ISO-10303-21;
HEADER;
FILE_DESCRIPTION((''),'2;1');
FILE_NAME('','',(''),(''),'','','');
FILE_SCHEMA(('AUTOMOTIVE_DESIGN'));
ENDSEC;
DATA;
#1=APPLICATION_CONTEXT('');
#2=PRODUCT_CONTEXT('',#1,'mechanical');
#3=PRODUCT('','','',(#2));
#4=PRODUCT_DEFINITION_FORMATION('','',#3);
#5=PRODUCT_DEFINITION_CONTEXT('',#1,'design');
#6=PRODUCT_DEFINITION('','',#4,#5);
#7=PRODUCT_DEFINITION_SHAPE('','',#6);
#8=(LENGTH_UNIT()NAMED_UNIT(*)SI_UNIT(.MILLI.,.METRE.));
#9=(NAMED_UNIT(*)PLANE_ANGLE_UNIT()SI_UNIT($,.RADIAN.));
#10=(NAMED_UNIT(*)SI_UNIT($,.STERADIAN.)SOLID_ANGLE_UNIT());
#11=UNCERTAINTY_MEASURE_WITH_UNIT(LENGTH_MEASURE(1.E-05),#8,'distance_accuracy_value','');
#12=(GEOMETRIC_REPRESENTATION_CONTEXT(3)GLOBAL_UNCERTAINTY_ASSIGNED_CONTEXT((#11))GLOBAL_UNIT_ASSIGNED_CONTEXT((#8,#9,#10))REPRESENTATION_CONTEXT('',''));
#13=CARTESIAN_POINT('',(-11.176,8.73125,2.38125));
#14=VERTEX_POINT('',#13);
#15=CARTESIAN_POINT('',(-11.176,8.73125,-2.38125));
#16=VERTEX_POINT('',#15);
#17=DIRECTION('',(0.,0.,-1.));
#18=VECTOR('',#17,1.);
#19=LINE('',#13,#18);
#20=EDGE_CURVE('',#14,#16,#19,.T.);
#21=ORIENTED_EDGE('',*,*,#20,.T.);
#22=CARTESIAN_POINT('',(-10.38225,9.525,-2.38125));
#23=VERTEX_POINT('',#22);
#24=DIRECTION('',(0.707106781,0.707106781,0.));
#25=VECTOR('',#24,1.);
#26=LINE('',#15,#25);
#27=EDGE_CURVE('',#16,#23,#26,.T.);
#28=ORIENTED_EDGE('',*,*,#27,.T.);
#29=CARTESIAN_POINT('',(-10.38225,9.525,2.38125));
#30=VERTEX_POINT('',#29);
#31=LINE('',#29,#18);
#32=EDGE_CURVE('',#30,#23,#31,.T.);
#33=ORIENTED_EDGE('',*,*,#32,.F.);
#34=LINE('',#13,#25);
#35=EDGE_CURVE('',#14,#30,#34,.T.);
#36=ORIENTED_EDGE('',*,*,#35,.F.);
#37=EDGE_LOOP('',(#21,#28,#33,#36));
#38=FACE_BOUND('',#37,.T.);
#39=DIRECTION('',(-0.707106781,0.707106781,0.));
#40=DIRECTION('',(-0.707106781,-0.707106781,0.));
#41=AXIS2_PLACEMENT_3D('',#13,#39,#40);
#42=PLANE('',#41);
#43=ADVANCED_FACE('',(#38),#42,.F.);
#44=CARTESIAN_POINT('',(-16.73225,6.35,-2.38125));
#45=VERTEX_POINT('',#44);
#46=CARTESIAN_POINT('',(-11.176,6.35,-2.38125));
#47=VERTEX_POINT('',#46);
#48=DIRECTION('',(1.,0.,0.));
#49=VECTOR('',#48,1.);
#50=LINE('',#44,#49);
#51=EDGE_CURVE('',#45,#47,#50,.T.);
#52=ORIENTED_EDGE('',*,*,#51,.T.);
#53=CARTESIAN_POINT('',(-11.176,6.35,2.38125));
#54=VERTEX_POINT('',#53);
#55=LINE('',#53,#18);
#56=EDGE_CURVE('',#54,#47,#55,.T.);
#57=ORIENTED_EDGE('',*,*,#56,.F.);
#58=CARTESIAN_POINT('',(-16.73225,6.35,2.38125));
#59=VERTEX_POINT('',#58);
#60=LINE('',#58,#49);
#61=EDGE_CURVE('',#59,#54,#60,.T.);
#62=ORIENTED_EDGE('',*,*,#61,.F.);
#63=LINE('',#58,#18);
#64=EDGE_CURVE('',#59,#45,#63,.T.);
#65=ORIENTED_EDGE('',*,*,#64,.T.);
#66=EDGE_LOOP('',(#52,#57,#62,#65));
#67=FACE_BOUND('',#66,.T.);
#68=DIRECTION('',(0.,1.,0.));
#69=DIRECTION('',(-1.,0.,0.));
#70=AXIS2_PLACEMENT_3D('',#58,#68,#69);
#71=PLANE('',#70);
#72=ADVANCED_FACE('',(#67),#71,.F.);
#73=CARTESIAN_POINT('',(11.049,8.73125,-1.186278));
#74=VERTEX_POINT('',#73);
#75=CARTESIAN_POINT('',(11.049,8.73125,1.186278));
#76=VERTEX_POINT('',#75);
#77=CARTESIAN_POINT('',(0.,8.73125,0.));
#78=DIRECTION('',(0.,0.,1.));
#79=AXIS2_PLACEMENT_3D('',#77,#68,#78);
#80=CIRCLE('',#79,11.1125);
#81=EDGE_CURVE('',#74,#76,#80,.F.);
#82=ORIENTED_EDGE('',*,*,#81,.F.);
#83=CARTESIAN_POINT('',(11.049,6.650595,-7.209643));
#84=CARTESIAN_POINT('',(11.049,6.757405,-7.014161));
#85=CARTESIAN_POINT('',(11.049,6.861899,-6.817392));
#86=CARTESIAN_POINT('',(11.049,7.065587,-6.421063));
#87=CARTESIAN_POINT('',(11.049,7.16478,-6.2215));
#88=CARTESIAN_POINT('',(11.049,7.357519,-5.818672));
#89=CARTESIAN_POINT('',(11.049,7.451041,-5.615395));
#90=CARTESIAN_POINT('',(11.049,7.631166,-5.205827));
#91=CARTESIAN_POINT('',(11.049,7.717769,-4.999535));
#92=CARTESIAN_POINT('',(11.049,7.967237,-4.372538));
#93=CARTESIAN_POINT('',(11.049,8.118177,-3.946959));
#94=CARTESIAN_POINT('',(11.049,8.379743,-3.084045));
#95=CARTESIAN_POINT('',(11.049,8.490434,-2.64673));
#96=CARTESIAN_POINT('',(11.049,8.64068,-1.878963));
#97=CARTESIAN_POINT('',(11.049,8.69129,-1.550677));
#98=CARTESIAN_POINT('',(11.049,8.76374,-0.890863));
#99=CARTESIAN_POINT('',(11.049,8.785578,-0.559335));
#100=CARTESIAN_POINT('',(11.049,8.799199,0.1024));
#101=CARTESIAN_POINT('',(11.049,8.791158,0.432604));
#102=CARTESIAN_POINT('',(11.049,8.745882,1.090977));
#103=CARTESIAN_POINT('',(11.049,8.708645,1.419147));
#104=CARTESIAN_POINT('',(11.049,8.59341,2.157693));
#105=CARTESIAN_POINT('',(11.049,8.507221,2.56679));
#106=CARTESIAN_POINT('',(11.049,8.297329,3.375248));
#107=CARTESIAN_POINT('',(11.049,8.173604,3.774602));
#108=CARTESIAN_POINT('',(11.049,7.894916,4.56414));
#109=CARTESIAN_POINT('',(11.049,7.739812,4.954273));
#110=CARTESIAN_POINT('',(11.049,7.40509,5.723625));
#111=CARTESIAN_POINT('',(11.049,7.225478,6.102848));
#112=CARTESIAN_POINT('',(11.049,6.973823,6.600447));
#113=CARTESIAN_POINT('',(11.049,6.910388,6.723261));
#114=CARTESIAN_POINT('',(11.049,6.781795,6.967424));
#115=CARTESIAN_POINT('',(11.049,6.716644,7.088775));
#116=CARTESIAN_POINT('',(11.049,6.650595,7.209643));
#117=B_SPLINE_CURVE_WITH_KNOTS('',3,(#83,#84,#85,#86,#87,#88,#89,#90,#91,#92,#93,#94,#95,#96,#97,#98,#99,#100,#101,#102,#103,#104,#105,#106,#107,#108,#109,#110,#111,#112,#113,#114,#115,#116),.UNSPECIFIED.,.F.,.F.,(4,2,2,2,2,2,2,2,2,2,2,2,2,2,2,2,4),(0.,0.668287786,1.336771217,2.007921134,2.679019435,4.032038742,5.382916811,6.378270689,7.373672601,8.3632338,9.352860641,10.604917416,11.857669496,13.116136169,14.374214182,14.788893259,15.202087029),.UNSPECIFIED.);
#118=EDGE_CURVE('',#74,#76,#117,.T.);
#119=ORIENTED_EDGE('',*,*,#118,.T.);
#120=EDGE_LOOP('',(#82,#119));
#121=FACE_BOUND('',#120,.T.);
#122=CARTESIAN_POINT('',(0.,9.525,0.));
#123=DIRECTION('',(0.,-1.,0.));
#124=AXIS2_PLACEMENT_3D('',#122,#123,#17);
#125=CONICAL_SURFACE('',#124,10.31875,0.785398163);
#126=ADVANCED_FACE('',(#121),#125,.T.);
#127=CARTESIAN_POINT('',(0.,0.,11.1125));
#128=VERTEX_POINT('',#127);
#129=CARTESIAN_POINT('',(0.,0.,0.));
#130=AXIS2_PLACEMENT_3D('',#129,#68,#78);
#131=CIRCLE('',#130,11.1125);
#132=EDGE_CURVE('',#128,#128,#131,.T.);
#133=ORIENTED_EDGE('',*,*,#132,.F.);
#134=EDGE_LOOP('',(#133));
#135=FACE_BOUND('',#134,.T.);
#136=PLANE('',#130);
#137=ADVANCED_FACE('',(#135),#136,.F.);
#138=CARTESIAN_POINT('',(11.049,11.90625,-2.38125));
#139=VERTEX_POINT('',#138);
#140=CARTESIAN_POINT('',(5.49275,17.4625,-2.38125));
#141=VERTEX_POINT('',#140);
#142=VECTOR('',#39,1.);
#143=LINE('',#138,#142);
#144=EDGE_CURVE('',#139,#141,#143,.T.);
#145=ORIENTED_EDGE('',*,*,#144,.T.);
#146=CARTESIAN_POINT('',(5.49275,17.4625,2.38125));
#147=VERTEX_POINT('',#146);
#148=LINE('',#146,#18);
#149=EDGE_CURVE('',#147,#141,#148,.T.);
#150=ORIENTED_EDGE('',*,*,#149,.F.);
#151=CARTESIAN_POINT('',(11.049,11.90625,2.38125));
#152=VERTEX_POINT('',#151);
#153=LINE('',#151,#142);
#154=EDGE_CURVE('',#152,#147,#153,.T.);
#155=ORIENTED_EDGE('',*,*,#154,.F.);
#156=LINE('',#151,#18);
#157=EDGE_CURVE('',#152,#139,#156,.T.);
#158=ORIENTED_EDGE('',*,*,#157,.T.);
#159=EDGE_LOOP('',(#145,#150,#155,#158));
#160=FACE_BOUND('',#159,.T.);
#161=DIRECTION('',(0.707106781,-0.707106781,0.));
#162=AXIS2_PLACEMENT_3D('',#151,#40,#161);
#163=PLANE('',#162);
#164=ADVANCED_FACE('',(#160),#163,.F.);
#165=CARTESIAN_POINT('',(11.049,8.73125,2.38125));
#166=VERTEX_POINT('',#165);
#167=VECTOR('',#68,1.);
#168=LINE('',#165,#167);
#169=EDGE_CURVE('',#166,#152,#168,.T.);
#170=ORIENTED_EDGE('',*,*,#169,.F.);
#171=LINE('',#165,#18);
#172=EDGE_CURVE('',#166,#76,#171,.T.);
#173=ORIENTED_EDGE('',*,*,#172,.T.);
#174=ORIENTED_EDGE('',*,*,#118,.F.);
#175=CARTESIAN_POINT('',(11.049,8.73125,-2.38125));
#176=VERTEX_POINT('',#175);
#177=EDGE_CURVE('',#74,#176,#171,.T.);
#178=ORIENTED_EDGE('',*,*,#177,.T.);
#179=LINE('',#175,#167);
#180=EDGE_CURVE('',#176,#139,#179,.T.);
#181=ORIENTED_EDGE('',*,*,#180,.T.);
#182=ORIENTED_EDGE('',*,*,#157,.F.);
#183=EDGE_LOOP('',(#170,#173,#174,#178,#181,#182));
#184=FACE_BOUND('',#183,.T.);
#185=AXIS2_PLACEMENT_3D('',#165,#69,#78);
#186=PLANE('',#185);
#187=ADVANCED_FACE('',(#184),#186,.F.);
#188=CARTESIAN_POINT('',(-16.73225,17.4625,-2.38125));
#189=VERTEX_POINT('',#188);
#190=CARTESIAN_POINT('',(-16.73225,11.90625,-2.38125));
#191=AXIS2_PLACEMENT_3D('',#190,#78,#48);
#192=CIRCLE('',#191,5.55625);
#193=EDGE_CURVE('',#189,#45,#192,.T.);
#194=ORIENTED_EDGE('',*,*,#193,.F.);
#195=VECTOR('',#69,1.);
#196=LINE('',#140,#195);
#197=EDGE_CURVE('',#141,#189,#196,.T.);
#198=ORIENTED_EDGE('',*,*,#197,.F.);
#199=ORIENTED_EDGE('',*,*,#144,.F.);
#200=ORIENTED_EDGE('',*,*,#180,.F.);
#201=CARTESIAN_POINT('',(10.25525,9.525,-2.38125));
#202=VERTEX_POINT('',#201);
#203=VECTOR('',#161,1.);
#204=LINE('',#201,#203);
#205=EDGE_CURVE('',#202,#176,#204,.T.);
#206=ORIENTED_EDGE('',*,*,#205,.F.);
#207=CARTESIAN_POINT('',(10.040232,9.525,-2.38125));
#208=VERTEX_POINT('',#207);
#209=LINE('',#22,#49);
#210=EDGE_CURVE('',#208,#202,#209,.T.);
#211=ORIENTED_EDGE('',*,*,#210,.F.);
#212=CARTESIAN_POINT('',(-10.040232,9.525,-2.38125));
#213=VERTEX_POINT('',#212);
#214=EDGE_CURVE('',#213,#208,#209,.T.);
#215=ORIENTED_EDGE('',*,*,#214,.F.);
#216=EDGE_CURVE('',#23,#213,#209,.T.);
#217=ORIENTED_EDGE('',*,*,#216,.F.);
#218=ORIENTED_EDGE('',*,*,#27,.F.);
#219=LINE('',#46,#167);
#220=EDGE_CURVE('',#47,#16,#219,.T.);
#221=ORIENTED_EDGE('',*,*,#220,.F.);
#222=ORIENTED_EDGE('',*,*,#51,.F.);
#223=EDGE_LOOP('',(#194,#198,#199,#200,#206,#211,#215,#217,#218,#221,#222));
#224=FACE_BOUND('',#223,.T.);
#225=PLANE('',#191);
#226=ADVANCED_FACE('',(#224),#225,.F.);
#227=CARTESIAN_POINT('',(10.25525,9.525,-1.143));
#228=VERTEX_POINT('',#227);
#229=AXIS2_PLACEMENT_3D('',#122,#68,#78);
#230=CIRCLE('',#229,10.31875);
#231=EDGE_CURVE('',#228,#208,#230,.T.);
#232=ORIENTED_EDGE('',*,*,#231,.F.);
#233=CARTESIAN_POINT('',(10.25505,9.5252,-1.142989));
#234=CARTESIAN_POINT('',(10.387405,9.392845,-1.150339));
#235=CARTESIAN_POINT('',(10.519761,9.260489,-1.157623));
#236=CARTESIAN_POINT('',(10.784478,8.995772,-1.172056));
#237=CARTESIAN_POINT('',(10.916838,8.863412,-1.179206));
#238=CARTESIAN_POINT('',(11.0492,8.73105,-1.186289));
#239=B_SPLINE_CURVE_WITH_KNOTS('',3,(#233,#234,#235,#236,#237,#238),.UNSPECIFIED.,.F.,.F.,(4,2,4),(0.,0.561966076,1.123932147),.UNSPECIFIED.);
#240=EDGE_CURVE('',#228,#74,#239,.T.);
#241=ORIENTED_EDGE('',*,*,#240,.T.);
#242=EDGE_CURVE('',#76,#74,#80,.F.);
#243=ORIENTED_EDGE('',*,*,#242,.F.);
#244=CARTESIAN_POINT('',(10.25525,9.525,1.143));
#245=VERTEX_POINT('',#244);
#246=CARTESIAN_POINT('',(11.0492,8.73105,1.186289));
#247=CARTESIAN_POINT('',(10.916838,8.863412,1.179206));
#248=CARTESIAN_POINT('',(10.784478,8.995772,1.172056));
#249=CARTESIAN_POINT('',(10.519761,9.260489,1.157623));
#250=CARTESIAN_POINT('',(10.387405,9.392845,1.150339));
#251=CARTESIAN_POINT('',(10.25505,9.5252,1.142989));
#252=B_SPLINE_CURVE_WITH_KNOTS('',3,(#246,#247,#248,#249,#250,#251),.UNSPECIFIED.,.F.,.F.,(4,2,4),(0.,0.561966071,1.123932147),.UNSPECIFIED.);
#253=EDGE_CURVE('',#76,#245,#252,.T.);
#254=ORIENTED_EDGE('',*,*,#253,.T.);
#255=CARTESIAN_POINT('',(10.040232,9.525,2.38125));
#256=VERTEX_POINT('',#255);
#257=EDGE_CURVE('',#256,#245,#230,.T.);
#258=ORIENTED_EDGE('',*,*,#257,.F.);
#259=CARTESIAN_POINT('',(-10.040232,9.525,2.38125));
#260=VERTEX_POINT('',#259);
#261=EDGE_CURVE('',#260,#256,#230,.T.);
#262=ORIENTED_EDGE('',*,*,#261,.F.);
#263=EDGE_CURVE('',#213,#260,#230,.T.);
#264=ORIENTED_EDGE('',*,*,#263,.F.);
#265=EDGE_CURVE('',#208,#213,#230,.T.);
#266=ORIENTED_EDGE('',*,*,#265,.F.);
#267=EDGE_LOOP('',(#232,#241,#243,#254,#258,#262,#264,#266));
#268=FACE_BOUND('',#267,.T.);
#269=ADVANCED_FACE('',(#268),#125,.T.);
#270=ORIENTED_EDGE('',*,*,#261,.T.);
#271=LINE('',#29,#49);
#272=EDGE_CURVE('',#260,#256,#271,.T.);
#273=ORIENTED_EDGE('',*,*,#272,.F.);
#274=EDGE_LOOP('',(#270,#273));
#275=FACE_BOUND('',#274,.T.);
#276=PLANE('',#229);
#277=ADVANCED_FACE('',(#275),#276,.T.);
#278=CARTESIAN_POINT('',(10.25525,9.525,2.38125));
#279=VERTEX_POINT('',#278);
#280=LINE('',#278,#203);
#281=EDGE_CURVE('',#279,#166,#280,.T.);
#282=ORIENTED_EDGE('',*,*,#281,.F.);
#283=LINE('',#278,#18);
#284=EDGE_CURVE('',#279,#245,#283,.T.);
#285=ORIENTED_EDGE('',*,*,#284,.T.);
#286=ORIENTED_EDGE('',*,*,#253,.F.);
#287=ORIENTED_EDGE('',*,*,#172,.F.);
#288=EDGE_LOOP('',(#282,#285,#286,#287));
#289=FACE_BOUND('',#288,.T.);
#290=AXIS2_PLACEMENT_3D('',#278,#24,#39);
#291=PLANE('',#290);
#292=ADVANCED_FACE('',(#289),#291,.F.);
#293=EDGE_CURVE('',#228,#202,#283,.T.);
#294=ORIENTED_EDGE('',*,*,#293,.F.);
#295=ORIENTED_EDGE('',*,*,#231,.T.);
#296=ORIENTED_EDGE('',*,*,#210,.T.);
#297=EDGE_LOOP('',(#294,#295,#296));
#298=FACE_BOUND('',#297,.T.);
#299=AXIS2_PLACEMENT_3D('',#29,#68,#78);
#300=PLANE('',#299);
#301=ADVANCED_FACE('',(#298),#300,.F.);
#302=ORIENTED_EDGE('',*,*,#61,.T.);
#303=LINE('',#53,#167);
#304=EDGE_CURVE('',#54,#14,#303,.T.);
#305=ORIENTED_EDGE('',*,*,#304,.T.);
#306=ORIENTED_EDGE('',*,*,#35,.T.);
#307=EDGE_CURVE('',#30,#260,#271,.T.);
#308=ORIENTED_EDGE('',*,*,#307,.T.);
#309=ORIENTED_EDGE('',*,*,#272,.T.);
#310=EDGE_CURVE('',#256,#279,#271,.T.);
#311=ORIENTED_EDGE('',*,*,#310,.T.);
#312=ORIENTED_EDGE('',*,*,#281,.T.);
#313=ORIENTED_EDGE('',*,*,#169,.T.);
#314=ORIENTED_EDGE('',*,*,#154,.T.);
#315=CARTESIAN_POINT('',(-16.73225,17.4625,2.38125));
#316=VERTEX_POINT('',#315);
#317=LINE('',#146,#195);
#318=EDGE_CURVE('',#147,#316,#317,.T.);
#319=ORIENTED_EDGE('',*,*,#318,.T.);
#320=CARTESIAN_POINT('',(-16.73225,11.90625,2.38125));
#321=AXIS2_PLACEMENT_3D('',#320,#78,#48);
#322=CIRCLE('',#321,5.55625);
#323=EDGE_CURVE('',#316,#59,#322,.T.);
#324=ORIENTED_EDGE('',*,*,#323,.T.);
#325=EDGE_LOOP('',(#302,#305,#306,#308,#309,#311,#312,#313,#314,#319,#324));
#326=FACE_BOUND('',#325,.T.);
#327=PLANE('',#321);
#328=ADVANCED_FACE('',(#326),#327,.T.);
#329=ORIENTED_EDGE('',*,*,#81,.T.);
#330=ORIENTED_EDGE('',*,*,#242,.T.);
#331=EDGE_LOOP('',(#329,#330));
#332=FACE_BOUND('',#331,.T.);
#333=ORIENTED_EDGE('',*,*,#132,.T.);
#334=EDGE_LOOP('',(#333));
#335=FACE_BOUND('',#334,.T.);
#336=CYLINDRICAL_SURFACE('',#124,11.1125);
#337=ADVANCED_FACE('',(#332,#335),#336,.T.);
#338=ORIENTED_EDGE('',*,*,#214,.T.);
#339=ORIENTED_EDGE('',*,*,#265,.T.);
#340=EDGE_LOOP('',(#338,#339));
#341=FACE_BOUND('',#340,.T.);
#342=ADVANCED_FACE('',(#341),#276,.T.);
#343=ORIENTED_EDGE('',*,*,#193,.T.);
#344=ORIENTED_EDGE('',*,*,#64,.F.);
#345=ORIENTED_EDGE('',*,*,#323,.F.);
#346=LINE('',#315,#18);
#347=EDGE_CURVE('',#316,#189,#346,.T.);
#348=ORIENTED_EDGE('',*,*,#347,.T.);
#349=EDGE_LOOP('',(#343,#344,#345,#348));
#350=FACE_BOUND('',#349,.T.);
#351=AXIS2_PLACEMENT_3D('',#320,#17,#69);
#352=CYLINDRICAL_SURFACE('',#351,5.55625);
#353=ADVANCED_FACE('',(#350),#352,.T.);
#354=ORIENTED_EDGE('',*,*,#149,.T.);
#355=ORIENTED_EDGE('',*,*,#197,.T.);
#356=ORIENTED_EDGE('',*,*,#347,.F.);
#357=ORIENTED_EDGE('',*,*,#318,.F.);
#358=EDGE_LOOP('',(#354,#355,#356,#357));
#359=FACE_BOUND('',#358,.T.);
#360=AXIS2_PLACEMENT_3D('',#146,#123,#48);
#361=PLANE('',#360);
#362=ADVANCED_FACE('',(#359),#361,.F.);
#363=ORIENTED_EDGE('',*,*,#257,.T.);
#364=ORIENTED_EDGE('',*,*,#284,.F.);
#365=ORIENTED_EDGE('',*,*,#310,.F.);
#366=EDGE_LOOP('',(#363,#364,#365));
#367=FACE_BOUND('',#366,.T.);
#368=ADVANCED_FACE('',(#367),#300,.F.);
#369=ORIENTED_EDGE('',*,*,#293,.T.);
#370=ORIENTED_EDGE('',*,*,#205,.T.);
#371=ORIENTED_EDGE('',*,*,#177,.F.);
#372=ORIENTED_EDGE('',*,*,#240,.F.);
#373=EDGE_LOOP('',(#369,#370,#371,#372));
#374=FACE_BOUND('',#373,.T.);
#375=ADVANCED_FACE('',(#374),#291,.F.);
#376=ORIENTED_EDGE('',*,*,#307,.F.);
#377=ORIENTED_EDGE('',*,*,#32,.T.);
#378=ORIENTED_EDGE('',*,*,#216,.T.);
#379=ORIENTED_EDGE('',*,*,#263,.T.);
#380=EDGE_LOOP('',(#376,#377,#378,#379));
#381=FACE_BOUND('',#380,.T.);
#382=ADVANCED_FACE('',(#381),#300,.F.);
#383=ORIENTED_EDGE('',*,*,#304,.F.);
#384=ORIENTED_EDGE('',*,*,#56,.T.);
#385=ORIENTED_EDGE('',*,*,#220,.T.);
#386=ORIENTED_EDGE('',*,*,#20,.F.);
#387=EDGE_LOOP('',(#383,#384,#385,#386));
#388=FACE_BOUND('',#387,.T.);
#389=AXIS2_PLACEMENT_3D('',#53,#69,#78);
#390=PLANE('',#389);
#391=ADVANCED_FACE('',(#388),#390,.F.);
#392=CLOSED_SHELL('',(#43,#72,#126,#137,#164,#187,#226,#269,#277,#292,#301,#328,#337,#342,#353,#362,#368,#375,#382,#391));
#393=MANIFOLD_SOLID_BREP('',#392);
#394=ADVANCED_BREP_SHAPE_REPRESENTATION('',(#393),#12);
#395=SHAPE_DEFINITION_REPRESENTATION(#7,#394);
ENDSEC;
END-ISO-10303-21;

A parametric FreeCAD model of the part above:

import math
import FreeCAD as App
import Part
import Sketcher
from FreeCAD import Vector
Q = App.Units.Quantity


def edges_at(feature, points):
    """Names of the edges that pass closest to the given points."""
    edges = feature.Shape.Edges
    near = lambda p: min(range(len(edges)), key=lambda i: edges[i].distToShape(Part.Vertex(*p))[0])
    return sorted({f"Edge{near(p) + 1}" for p in points})

doc = App.newDocument("Part")
body = doc.addObject("PartDesign::Body", "Body")

# Sketch on XZ plane
sketch1 = body.newObject("Sketcher::SketchObject", "Sketch")
sketch1.AttachmentSupport = (doc.getObject("XZ_Plane"), [""])
sketch1.MapMode = "FlatFace"
sketch1.addGeometry(Part.Circle(Vector(0, 0, 0), Vector(0, 0, 1), 11), False)
sketch1.addConstraint(Sketcher.Constraint("Coincident", 0, 3, -1, 1))
sketch1.addConstraint(Sketcher.Constraint("Diameter", 0, Q("0.875 in")))
pad1 = body.newObject("PartDesign::Pad", "Pad")
pad1.Profile = sketch1
pad1.Length = Q("0.375 in")
pad1.Reversed = True
doc.recompute()

chamfer = body.newObject("PartDesign::Chamfer", "Chamfer")
chamfer.Base = (pad1, edges_at(pad1, [(0, 9.525, 11.113)]))
chamfer.Size = Q("0.03125 in")

# Sketch on XY plane
sketch2 = body.newObject("Sketcher::SketchObject", "Sketch001")
sketch2.AttachmentSupport = (doc.getObject("XY_Plane"), [""])
sketch2.MapMode = "FlatFace"
sketch2.addGeometry(Part.LineSegment(Vector(11, 8.7, 0), Vector(11, 11.9, 0)), False)
sketch2.addGeometry(Part.LineSegment(Vector(11, 11.9, 0), Vector(5.5, 17.5, 0)), False)
sketch2.addGeometry(Part.LineSegment(Vector(5.5, 17.5, 0), Vector(-16.7, 17.5, 0)), False)
sketch2.addGeometry(Part.ArcOfCircle(Part.Circle(Vector(-16.7, 11.9, 0), Vector(0, 0, 1), 5.6), math.radians(90), math.radians(270)), False)
sketch2.addGeometry(Part.LineSegment(Vector(-16.7, 6.3, 0), Vector(-11.2, 6.3, 0)), False)
sketch2.addGeometry(Part.LineSegment(Vector(-11.2, 6.3, 0), Vector(-11.2, 8.7, 0)), False)
sketch2.addGeometry(Part.LineSegment(Vector(-11.2, 8.7, 0), Vector(-10.4, 9.5, 0)), False)
sketch2.addGeometry(Part.LineSegment(Vector(-10.4, 9.5, 0), Vector(10.3, 9.5, 0)), False)
sketch2.addGeometry(Part.LineSegment(Vector(10.3, 9.5, 0), Vector(11, 8.7, 0)), False)
sketch2.addConstraint(Sketcher.Constraint("Coincident", 0, 2, 1, 1))
sketch2.addConstraint(Sketcher.Constraint("Coincident", 1, 2, 2, 1))
sketch2.addConstraint(Sketcher.Constraint("Tangent", 2, 2, 3, 1))
sketch2.addConstraint(Sketcher.Constraint("Tangent", 3, 2, 4, 1))
sketch2.addConstraint(Sketcher.Constraint("Coincident", 4, 2, 5, 1))
sketch2.addConstraint(Sketcher.Constraint("Coincident", 5, 2, 6, 1))
sketch2.addConstraint(Sketcher.Constraint("Coincident", 6, 2, 7, 1))
sketch2.addConstraint(Sketcher.Constraint("Coincident", 7, 2, 8, 1))
sketch2.addConstraint(Sketcher.Constraint("Coincident", 8, 2, 0, 1))
sketch2.addConstraint(Sketcher.Constraint("Vertical", 0))
sketch2.addConstraint(Sketcher.Constraint("Horizontal", 2))
sketch2.addConstraint(Sketcher.Constraint("Horizontal", 4))
sketch2.addConstraint(Sketcher.Constraint("Vertical", 5))
sketch2.addConstraint(Sketcher.Constraint("Horizontal", 7))
sketch2.addConstraint(Sketcher.Constraint("Perpendicular", 1, 6))
sketch2.addConstraint(Sketcher.Constraint("Perpendicular", 6, 8))
sketch2.addConstraint(Sketcher.Constraint("Horizontal", 3, 3, 0, 2))
sketch2.addConstraint(Sketcher.Constraint("Horizontal", 5, 2, 8, 2))
sketch2.addConstraint(Sketcher.Constraint("Equal", 6, 8))
sketch2.addConstraint(Sketcher.Constraint("Radius", 3, Q("0.21875 in")))
sketch2.addConstraint(Sketcher.Constraint("DistanceX", 2, 2, 2, 1, Q("0.875 in")))
sketch2.addConstraint(Sketcher.Constraint("DistanceX", 4, 1, 4, 2, Q("0.21875 in")))
sketch2.addConstraint(Sketcher.Constraint("DistanceX", 7, 1, 7, 2, Q("0.8125 in")))
sketch2.addConstraint(Sketcher.Constraint("DistanceY", 0, 1, 0, 2, Q("0.125 in")))
sketch2.addConstraint(Sketcher.Constraint("DistanceY", -1, 1, 3, 2, Q("0.25 in")))
sketch2.addConstraint(Sketcher.Constraint("DistanceX", 4, 2, -1, 1, Q("0.44 in")))
pad2 = body.newObject("PartDesign::Pad", "Pad001")
pad2.Profile = sketch2
pad2.Length = Q("0.1875 in")
pad2.Midplane = True

doc.recompute()
